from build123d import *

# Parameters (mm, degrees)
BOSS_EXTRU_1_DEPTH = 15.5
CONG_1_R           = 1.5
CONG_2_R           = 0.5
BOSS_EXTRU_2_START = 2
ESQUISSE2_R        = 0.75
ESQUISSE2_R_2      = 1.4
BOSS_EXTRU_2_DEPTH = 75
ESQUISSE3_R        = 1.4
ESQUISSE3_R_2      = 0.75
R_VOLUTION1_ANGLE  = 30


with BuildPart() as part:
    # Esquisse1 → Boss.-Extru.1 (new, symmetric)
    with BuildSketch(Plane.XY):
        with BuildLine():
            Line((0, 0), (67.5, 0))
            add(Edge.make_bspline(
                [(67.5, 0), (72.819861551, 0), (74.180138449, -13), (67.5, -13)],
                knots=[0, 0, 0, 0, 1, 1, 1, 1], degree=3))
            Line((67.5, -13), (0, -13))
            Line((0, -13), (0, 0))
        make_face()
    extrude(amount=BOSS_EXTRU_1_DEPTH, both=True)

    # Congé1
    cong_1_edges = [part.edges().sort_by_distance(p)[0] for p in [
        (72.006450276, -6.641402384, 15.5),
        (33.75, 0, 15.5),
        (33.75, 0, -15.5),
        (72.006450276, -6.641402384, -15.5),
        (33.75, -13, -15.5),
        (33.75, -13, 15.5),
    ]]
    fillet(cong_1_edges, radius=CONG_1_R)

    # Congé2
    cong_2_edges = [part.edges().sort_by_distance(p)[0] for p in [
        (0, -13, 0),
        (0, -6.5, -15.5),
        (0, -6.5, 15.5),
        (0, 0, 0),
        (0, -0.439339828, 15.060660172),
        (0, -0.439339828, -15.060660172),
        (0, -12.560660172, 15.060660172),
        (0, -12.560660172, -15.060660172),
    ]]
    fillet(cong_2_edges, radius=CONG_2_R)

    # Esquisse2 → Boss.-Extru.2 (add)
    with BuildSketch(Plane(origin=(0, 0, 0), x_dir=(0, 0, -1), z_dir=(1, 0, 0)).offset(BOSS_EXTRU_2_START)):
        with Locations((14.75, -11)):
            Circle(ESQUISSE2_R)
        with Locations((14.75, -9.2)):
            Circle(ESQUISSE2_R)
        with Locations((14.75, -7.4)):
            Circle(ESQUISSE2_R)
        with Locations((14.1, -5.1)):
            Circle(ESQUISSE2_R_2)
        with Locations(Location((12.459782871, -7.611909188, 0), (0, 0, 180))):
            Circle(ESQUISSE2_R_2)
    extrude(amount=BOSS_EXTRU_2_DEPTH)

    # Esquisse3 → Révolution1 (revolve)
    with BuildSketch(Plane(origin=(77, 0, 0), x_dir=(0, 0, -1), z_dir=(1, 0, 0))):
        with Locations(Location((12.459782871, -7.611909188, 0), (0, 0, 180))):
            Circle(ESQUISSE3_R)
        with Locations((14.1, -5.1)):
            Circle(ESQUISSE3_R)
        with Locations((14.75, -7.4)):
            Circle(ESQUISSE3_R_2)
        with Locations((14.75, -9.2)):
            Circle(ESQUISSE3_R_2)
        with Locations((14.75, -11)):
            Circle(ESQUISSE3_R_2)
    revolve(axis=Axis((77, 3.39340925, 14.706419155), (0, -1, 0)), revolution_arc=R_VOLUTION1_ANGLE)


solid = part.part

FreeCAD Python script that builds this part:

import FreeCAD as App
import Part
import Sketcher


def edges_at(feature, points):
    """Names of the edges that pass closest to the given points."""
    edges = feature.Shape.Edges
    near = lambda p: min(range(len(edges)), key=lambda i: edges[i].distToShape(Part.Vertex(*p))[0])
    return sorted({f"Edge{near(p) + 1}" for p in points})

doc = App.newDocument("Part")
body = doc.addObject("PartDesign::Body", "Body")

# Sketch on XY plane
sketch1 = body.newObject("Sketcher::SketchObject", "Sketch")
sketch1.AttachmentSupport = (doc.getObject("XY_Plane"), [""])
sketch1.MapMode = "FlatFace"
sketch1.addGeometry(Part.LineSegment(App.Vector(67.5, 0, 0), App.Vector(0, 0, 0)), False)
sketch1.addGeometry(Part.LineSegment(App.Vector(0, 0, 0), App.Vector(0, -13, 0)), False)
sketch1.addGeometry(Part.LineSegment(App.Vector(0, -13, 0), App.Vector(67.5, -13, 0)), False)
sketch1.addGeometry(Part.BSplineCurve([App.Vector(67.5, 0, 0), App.Vector(72.819862, 0, 0), App.Vector(74.180138, -13, 0), App.Vector(67.5, -13, 0)], [4, 4], [0, 1], False, 3, [1, 1, 1, 1], False), False)
sketch1.addConstraint(Sketcher.Constraint("Block", 3))
sketch1.addConstraint(Sketcher.Constraint("Coincident", 0, 2, 1, 1))
sketch1.addConstraint(Sketcher.Constraint("Coincident", 1, 2, 2, 1))
sketch1.addConstraint(Sketcher.Constraint("Coincident", 2, 2, 3, 2))
sketch1.addConstraint(Sketcher.Constraint("Coincident", 3, 1, 0, 1))
sketch1.addConstraint(Sketcher.Constraint("Horizontal", 0))
sketch1.addConstraint(Sketcher.Constraint("Vertical", 1))
sketch1.addConstraint(Sketcher.Constraint("Horizontal", 2))
sketch1.addConstraint(Sketcher.Constraint("PointOnObject", 1, 2, -2))
pad1 = body.newObject("PartDesign::Pad", "Pad")
pad1.Profile = sketch1
pad1.Length = 31
pad1.Midplane = True
doc.recompute()

fillet = body.newObject("PartDesign::Fillet", "Fillet")
fillet.Base = (pad1, edges_at(pad1, [
    (72.006, -6.641, 15.5),
    (33.75, 0, 15.5),
    (33.75, 0, -15.5),
    (72.006, -6.641, -15.5),
    (33.75, -13, -15.5),
    (33.75, -13, 15.5),
]))
fillet.Radius = 1.5
doc.recompute()

fillet2 = body.newObject("PartDesign::Fillet", "Fillet001")
fillet2.Base = (fillet, edges_at(fillet, [
    (0, -13, 0),
    (0, -6.5, -15.5),
    (0, -6.5, 15.5),
    (0, 0, 0),
    (0, -0.439, 15.061),
    (0, -0.439, -15.061),
    (0, -12.561, 15.061),
    (0, -12.561, -15.061),
]))
fillet2.Radius = 0.5

# Sketch on YZ plane
sketch2 = body.newObject("Sketcher::SketchObject", "Sketch001")
sketch2.AttachmentSupport = (doc.getObject("YZ_Plane"), [""])
sketch2.MapMode = "FlatFace"
sketch2.AttachmentOffset = App.Placement(App.Vector(0, 0, 2), App.Rotation())
sketch2.addGeometry(Part.Circle(App.Vector(-11, -14.75, 0), App.Vector(0, 0, 1), 0.75), False)
sketch2.addGeometry(Part.Circle(App.Vector(-9.2, -14.75, 0), App.Vector(0, 0, 1), 0.75), False)
sketch2.addGeometry(Part.Circle(App.Vector(-7.4, -14.75, 0), App.Vector(0, 0, 1), 0.75), False)
sketch2.addGeometry(Part.Circle(App.Vector(-5.1, -14.1, 0), App.Vector(0, 0, 1), 1.4), False)
sketch2.addGeometry(Part.Circle(App.Vector(-7.611909, -12.459783, 0), App.Vector(0, 0, 1), 1.4), False)
sketch2.addConstraint(Sketcher.Constraint("Equal", 0, 1))
sketch2.addConstraint(Sketcher.Constraint("Equal", 1, 2))
sketch2.addConstraint(Sketcher.Constraint("Equal", 3, 4))
sketch2.addConstraint(Sketcher.Constraint("Horizontal", 0, 3, 1, 3))
sketch2.addConstraint(Sketcher.Constraint("Horizontal", 1, 3, 2, 3))
sketch2.addConstraint(Sketcher.Constraint("Diameter", 0, 1.5))
sketch2.addConstraint(Sketcher.Constraint("Diameter", 3, 2.8))
sketch2.addConstraint(Sketcher.Constraint("DistanceX", 0, 3, -1, 1, 11.0))
sketch2.addConstraint(Sketcher.Constraint("DistanceX", 1, 3, -1, 1, 9.2))
sketch2.addConstraint(Sketcher.Constraint("DistanceX", 2, 3, -1, 1, 7.4))
sketch2.addConstraint(Sketcher.Constraint("DistanceX", 3, 3, -1, 1, 5.1))
sketch2.addConstraint(Sketcher.Constraint("DistanceY", 3, 3, -1, 1, 14.1))
sketch2.addConstraint(Sketcher.Constraint("DistanceY", 0, 3, -1, 1, 14.75))
sketch2.addConstraint(Sketcher.Constraint("DistanceX", 4, 3, -1, 1, 7.611909))
sketch2.addConstraint(Sketcher.Constraint("DistanceY", 4, 3, -1, 1, 12.459783))
pad2 = body.newObject("PartDesign::Pad", "Pad001")
pad2.Profile = sketch2
pad2.Length = 75

# Sketch on YZ plane
sketch3 = body.newObject("Sketcher::SketchObject", "Sketch002")
sketch3.AttachmentSupport = (doc.getObject("YZ_Plane"), [""])
sketch3.MapMode = "FlatFace"
sketch3.AttachmentOffset = App.Placement(App.Vector(0, 0, 77), App.Rotation())
sketch3.addGeometry(Part.Circle(App.Vector(-7.611909, -12.459783, 0), App.Vector(0, 0, 1), 1.4), False)
sketch3.addGeometry(Part.Circle(App.Vector(-5.1, -14.1, 0), App.Vector(0, 0, 1), 1.4), False)
sketch3.addGeometry(Part.Circle(App.Vector(-7.4, -14.75, 0), App.Vector(0, 0, 1), 0.75), False)
sketch3.addGeometry(Part.Circle(App.Vector(-9.2, -14.75, 0), App.Vector(0, 0, 1), 0.75), False)
sketch3.addGeometry(Part.Circle(App.Vector(-11, -14.75, 0), App.Vector(0, 0, 1), 0.75), False)
sketch3.addGeometry(Part.LineSegment(App.Vector(-5.1, 14.706419, 0), App.Vector(-11, 14.706419, 0)), True)  # axis
sketch3.addConstraint(Sketcher.Constraint("Horizontal", 5))
sketch3.addConstraint(Sketcher.Constraint("Equal", 0, 1))
sketch3.addConstraint(Sketcher.Constraint("Equal", 2, 3))
sketch3.addConstraint(Sketcher.Constraint("Equal", 3, 4))
sketch3.addConstraint(Sketcher.Constraint("Horizontal", 2, 3, 3, 3))
sketch3.addConstraint(Sketcher.Constraint("Horizontal", 3, 3, 4, 3))
sketch3.addConstraint(Sketcher.Constraint("Vertical", 1, 3, 5, 1))
sketch3.addConstraint(Sketcher.Constraint("Vertical", 4, 3, 5, 2))
sketch3.addConstraint(Sketcher.Constraint("Diameter", 0, 2.8))
sketch3.addConstraint(Sketcher.Constraint("Diameter", 2, 1.5))
sketch3.addConstraint(Sketcher.Constraint("DistanceX", 5, 2, 5, 1, 5.9))
sketch3.addConstraint(Sketcher.Constraint("DistanceX", 4, 3, -1, 1, 11.0))
sketch3.addConstraint(Sketcher.Constraint("DistanceY", 1, 3, -1, 1, 14.1))
sketch3.addConstraint(Sketcher.Constraint("DistanceX", 2, 3, -1, 1, 7.4))
sketch3.addConstraint(Sketcher.Constraint("DistanceX", 3, 3, -1, 1, 9.2))
sketch3.addConstraint(Sketcher.Constraint("DistanceY", 2, 3, -1, 1, 14.75))
sketch3.addConstraint(Sketcher.Constraint("DistanceX", 0, 3, -1, 1, 7.611909))
sketch3.addConstraint(Sketcher.Constraint("DistanceY", -1, 1, 5, 1, 14.706419))
sketch3.addConstraint(Sketcher.Constraint("DistanceY", 0, 3, -1, 1, 12.459783))
revolution = body.newObject("PartDesign::Revolution", "Revolution")
revolution.Profile = sketch3
revolution.ReferenceAxis = (sketch3, ["Axis0"])
revolution.Angle = 30

doc.recompute()
